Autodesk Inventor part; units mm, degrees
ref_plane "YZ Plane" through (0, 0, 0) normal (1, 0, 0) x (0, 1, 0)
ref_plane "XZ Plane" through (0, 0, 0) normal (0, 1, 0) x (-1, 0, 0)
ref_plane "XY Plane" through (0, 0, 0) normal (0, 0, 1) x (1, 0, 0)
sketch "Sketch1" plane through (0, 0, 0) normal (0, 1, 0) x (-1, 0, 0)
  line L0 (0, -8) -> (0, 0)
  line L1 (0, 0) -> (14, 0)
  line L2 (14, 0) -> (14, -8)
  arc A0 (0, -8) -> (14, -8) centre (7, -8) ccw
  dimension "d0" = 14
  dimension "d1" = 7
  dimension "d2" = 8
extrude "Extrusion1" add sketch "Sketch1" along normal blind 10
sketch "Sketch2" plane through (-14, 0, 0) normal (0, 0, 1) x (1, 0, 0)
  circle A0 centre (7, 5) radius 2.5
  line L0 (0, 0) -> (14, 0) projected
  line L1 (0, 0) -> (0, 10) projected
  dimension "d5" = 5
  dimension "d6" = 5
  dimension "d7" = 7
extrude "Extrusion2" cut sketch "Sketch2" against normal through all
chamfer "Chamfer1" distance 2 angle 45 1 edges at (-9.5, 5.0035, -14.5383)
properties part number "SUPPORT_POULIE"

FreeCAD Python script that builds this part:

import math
import FreeCAD as App
import Part
import Sketcher
from FreeCAD import Vector
Q = App.Units.Quantity


def edges_at(feature, points):
    """Names of the edges that pass closest to the given points."""
    edges = feature.Shape.Edges
    near = lambda p: min(range(len(edges)), key=lambda i: edges[i].distToShape(Part.Vertex(*p))[0])
    return sorted({f"Edge{near(p) + 1}" for p in points})

doc = App.newDocument("Part")
body = doc.addObject("PartDesign::Body", "Body")

sketch1 = body.newObject("Sketcher::SketchObject", "Sketch")
sketch1.AttachmentSupport = (doc.getObject("XZ_Plane"), [""])
sketch1.MapMode = "FlatFace"
sketch1.addGeometry([
    Part.LineSegment(Vector(0, 0, 0), Vector(0, -8, 0)),
    Part.ArcOfCircle(Part.Circle(Vector(-7, -8, 0), Vector(0, 0, 1), 7), math.radians(180), math.radians(360)),
    Part.LineSegment(Vector(-14, -8, 0), Vector(-14, 0, 0)),
    Part.LineSegment(Vector(-14, 0, 0), Vector(0, 0, 0)),
], False)
sketch1.addConstraint([
    Sketcher.Constraint("Tangent", 0, 2, 1, 2),
    Sketcher.Constraint("Tangent", 1, 1, 2, 1),
    Sketcher.Constraint("Coincident", 2, 2, 3, 1),
    Sketcher.Constraint("Coincident", 3, 2, 0, 1),
    Sketcher.Constraint("Vertical", 0),
    Sketcher.Constraint("Vertical", 2),
    Sketcher.Constraint("Horizontal", 3),
    Sketcher.Constraint("Coincident", 3, 2, -1, 1),
    Sketcher.Constraint("Radius", 1, Q("7 mm")),
    Sketcher.Constraint("DistanceY", 0, 2, 0, 1, Q("8 mm")),
])
pad1 = body.newObject("PartDesign::Pad", "Pad")
pad1.Profile = sketch1
pad1.Length = 10
pad1.Reversed = True

sketch2 = body.newObject("Sketcher::SketchObject", "Sketch001")
sketch2.AttachmentSupport = (doc.getObject("XY_Plane"), [""])
sketch2.MapMode = "FlatFace"
sketch2.addGeometry(Part.Circle(Vector(-7, 5, 0), Vector(0, 0, 1), 2.5), False)
sketch2.addConstraint([
    Sketcher.Constraint("Diameter", 0, Q("5 mm")),
    Sketcher.Constraint("DistanceX", 0, 3, -1, 1, Q("7 mm")),
    Sketcher.Constraint("DistanceY", -1, 1, 0, 3, Q("5 mm")),
])
pocket1 = body.newObject("PartDesign::Pocket", "Pocket")
pocket1.Profile = sketch2
pocket1.Type = "ThroughAll"
doc.recompute()

chamfer = body.newObject("PartDesign::Chamfer", "Chamfer")
chamfer.Base = (pocket1, edges_at(pocket1, [(-9.5, 5.003, -14.538)]))
chamfer.Size = 2

doc.recompute()
